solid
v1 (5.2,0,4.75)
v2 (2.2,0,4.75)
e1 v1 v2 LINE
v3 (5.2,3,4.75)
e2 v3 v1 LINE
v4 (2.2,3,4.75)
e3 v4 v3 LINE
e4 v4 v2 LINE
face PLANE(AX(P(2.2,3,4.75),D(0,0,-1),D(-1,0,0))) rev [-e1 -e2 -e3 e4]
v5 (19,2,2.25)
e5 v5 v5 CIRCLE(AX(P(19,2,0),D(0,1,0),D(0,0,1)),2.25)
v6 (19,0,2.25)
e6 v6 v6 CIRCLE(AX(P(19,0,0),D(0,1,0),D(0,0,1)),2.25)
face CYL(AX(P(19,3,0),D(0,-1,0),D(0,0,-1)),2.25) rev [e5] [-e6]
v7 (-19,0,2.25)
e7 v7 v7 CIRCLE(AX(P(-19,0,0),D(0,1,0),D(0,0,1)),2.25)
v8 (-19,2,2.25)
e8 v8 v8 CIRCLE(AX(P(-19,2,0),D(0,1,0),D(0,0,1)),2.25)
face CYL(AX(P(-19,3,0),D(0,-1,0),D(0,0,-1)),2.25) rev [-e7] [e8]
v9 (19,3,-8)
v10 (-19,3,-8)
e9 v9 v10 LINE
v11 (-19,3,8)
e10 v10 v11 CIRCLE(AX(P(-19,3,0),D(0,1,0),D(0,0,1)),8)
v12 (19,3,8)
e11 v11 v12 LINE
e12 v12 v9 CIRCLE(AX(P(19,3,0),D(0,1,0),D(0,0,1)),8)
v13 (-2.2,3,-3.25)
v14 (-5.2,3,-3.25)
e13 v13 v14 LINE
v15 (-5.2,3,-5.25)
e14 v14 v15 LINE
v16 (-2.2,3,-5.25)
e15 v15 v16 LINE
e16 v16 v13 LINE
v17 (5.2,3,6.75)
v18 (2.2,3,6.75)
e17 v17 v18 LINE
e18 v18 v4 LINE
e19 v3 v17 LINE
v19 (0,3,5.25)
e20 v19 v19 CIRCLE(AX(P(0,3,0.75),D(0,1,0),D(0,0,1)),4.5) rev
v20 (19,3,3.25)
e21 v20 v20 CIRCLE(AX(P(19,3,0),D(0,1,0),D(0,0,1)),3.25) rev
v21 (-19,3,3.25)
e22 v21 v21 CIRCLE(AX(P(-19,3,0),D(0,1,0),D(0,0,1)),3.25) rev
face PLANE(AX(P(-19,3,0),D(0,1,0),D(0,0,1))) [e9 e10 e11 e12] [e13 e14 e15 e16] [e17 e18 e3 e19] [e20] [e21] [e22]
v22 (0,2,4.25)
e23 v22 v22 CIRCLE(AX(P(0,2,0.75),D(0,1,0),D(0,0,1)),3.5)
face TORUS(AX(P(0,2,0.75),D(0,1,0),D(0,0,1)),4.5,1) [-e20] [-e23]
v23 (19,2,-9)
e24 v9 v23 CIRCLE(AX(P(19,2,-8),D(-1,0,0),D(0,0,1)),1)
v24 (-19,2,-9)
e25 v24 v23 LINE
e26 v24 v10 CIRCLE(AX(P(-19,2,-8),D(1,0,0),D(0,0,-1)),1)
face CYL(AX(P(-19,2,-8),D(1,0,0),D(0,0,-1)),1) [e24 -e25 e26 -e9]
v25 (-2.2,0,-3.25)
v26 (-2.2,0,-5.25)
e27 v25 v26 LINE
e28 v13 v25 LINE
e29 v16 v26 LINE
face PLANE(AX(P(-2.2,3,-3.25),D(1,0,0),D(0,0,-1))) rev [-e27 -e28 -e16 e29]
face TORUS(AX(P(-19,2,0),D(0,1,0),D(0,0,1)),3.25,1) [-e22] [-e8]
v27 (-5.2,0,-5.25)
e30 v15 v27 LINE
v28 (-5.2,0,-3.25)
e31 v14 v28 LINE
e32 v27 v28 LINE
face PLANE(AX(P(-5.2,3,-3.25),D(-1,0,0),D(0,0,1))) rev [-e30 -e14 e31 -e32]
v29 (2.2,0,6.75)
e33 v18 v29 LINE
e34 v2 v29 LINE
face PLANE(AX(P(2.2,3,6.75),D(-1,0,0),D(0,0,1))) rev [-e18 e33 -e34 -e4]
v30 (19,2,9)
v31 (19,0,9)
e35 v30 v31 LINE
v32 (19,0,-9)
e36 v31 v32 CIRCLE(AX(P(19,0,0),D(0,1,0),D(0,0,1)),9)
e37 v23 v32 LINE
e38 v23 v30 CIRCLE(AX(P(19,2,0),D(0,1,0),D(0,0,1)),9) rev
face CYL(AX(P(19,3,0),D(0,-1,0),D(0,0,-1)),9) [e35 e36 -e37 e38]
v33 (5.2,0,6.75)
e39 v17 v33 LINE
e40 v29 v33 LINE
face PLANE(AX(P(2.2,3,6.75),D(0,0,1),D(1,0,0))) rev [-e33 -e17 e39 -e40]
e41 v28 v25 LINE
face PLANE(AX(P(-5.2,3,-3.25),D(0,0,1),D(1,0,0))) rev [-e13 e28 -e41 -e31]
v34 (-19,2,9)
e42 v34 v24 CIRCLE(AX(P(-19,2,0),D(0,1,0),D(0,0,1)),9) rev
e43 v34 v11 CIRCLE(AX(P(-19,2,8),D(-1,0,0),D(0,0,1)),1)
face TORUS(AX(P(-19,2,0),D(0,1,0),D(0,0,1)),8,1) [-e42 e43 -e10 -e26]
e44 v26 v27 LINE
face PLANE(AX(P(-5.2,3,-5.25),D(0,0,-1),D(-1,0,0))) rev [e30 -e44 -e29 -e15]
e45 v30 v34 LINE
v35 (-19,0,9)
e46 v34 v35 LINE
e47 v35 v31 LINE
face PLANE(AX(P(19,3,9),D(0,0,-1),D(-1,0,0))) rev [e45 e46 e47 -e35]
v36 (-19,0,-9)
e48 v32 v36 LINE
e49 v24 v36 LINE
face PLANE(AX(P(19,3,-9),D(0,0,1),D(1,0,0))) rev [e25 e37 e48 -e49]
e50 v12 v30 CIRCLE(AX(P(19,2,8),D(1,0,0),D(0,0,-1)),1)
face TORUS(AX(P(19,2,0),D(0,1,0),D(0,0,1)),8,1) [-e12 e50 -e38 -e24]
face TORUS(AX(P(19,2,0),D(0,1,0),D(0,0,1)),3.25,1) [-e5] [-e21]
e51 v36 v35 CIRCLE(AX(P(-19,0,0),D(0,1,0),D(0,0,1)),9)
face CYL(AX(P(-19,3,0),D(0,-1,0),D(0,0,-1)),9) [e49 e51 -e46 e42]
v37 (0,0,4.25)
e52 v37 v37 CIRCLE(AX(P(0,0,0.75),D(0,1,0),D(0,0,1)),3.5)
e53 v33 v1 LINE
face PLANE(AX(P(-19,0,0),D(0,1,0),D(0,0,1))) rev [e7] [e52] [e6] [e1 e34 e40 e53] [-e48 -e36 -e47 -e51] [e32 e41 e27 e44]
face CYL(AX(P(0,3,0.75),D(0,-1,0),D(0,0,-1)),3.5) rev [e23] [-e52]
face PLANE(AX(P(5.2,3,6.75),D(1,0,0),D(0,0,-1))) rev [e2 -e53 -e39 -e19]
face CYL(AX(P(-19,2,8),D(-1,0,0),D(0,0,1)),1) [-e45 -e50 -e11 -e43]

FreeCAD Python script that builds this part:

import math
import FreeCAD as App
import Part
import Sketcher


def edges_at(feature, points):
    """Names of the edges that pass closest to the given points."""
    edges = feature.Shape.Edges
    near = lambda p: min(range(len(edges)), key=lambda i: edges[i].distToShape(Part.Vertex(*p))[0])
    return sorted({f"Edge{near(p) + 1}" for p in points})

doc = App.newDocument("Part")
body = doc.addObject("PartDesign::Body", "Body")

# Sketch on XZ plane
sketch1 = body.newObject("Sketcher::SketchObject", "Sketch")
sketch1.AttachmentSupport = (doc.getObject("XZ_Plane"), [""])
sketch1.MapMode = "FlatFace"
sketch1.addGeometry([
    Part.LineSegment(App.Vector(19, -9, 0), App.Vector(-19, -9, 0)),  # 0
    Part.ArcOfCircle(Part.Circle(App.Vector(-19, 0, 0), App.Vector(0, 0, 1), 9), math.radians(90), math.radians(270)),  # 1
    Part.LineSegment(App.Vector(-19, 9, 0), App.Vector(19, 9, 0)),  # 2
    Part.ArcOfCircle(Part.Circle(App.Vector(19, 0, 0), App.Vector(0, 0, 1), 9), math.radians(-90), math.radians(90)),  # 3
    Part.Circle(App.Vector(-19, 0, 0), App.Vector(0, 0, 1), 2.2),  # 4
    Part.Circle(App.Vector(0, 0.8, 0), App.Vector(0, 0, 1), 3.5),  # 5
    Part.Circle(App.Vector(19, 0, 0), App.Vector(0, 0, 1), 2.2),  # 6
], False)
sketch1.addConstraint([
    Sketcher.Constraint("Tangent", 0, 2, 1, 2),
    Sketcher.Constraint("Tangent", 1, 1, 2, 1),
    Sketcher.Constraint("Tangent", 2, 2, 3, 2),
    Sketcher.Constraint("Tangent", 3, 1, 0, 1),
    Sketcher.Constraint("Horizontal", 0),
    Sketcher.Constraint("Horizontal", 2),
    Sketcher.Constraint("Coincident", 4, 3, 1, 3),
    Sketcher.Constraint("Coincident", 6, 3, 3, 3),
    Sketcher.Constraint("Equal", 4, 6),
    Sketcher.Constraint("Symmetric", 1, 3, 3, 3, -1, 1),
    Sketcher.Constraint("PointOnObject", 5, 3, -2),
    Sketcher.Constraint("Diameter", 5, 7.0),
    Sketcher.Constraint("Radius", 1, 9.0),
    Sketcher.Constraint("Diameter", 4, 4.5),
    Sketcher.Constraint("DistanceX", 0, 2, 0, 1, 38.0),
    Sketcher.Constraint("DistanceY", -1, 1, 5, 3, 0.75),
])
pad1 = body.newObject("PartDesign::Pad", "Pad")
pad1.Profile = sketch1
pad1.Length = 3
pad1.Reversed = True

# Sketch on XZ plane
sketch2 = body.newObject("Sketcher::SketchObject", "Sketch001")
sketch2.AttachmentSupport = (doc.getObject("XZ_Plane"), [""])
sketch2.MapMode = "FlatFace"
sketch2.addGeometry([
    Part.LineSegment(App.Vector(2.2, 6.8, 0), App.Vector(2.2, 4.8, 0)),  # 0
    Part.LineSegment(App.Vector(2.2, 4.8, 0), App.Vector(5.2, 4.8, 0)),  # 1
    Part.LineSegment(App.Vector(5.2, 4.8, 0), App.Vector(5.2, 6.8, 0)),  # 2
    Part.LineSegment(App.Vector(5.2, 6.8, 0), App.Vector(2.2, 6.8, 0)),  # 3
    Part.LineSegment(App.Vector(-5.2, -3.2, 0), App.Vector(-5.2, -5.2, 0)),  # 4
    Part.LineSegment(App.Vector(-5.2, -5.2, 0), App.Vector(-2.2, -5.2, 0)),  # 5
    Part.LineSegment(App.Vector(-2.2, -5.2, 0), App.Vector(-2.2, -3.2, 0)),  # 6
    Part.LineSegment(App.Vector(-2.2, -3.2, 0), App.Vector(-5.2, -3.2, 0)),  # 7
], False)
sketch2.addConstraint([
    Sketcher.Constraint("Coincident", 0, 2, 1, 1),
    Sketcher.Constraint("Coincident", 1, 2, 2, 1),
    Sketcher.Constraint("Coincident", 2, 2, 3, 1),
    Sketcher.Constraint("Coincident", 3, 2, 0, 1),
    Sketcher.Constraint("Coincident", 4, 2, 5, 1),
    Sketcher.Constraint("Coincident", 5, 2, 6, 1),
    Sketcher.Constraint("Coincident", 6, 2, 7, 1),
    Sketcher.Constraint("Coincident", 7, 2, 4, 1),
    Sketcher.Constraint("Vertical", 0),
    Sketcher.Constraint("Horizontal", 1),
    Sketcher.Constraint("Vertical", 2),
    Sketcher.Constraint("Horizontal", 3),
    Sketcher.Constraint("Vertical", 4),
    Sketcher.Constraint("Horizontal", 5),
    Sketcher.Constraint("Vertical", 6),
    Sketcher.Constraint("Horizontal", 7),
    Sketcher.Constraint("Equal", 3, 5),
    Sketcher.Constraint("Equal", 2, 4),
    Sketcher.Constraint("DistanceX", 1, 1, 1, 2, 3.0),
    Sketcher.Constraint("DistanceY", 0, 2, 0, 1, 2.0),
    Sketcher.Constraint("DistanceY", 4, 2, 0, 2, 10.0),
    Sketcher.Constraint("DistanceX", -1, 1, 0, 2, 2.2),
    Sketcher.Constraint("DistanceX", 4, 2, -1, 1, 5.2),
    Sketcher.Constraint("DistanceY", -1, 1, 0, 2, 4.75),
])
pocket1 = body.newObject("PartDesign::Pocket", "Pocket")
pocket1.Profile = sketch2
pocket1.Type = "ThroughAll"
pocket1.Midplane = True
doc.recompute()

fillet = body.newObject("PartDesign::Fillet", "Fillet")
fillet.Base = (pocket1, edges_at(pocket1, [
    (-19, 3, -2.25),
    (28, 3, 0),
    (19, 3, -2.25),
    (0, 3, -9),
    (0, 3, -2.75),
    (-28, 3, 0),
    (0, 3, 9),
]))
fillet.Radius = 1

doc.recompute()
